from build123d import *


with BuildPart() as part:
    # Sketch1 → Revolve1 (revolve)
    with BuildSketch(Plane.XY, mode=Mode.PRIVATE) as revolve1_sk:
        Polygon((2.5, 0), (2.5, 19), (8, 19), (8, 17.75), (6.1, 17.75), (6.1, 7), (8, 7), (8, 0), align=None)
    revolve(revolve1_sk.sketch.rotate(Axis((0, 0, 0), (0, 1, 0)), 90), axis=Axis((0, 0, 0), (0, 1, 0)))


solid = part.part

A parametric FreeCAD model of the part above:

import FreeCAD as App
import Part
import Sketcher

V = App.Vector
Q = App.Units.Quantity


def add_polygon(sketch, points):
    """Adds a closed chain of lines whose ends are joined by coincident constraints."""
    first, n = sketch.GeometryCount, len(points)
    for a, b in zip(points, points[1:] + points[:1]):
        sketch.addGeometry(Part.LineSegment(App.Vector(*a, 0), App.Vector(*b, 0)), False)
    for i in range(n):
        sketch.addConstraint(Sketcher.Constraint("Coincident", first + i, 2, first + (i + 1) % n, 1))

doc = App.newDocument("Part")
body = doc.addObject("PartDesign::Body", "Body")

# Sketch on XY plane
sketch1 = doc.addObject("Sketcher::SketchObject", "Sketch")
body.addObject(sketch1)
sketch1.AttachmentSupport = (doc.XY_Plane, [""])
sketch1.MapMode = "FlatFace"
add_polygon(sketch1, [(2.5, 19), (2.5, 0), (8, 0), (8, 7), (6.1, 7), (6.1, 17.8), (8, 17.8), (8, 19)])  # lines 0-7
sketch1.addConstraint(Sketcher.Constraint("Vertical", 0))
sketch1.addConstraint(Sketcher.Constraint("Horizontal", 1))
sketch1.addConstraint(Sketcher.Constraint("Vertical", 2))
sketch1.addConstraint(Sketcher.Constraint("Horizontal", 3))
sketch1.addConstraint(Sketcher.Constraint("Vertical", 4))
sketch1.addConstraint(Sketcher.Constraint("Horizontal", 5))
sketch1.addConstraint(Sketcher.Constraint("Vertical", 6))
sketch1.addConstraint(Sketcher.Constraint("Horizontal", 7))
sketch1.addConstraint(Sketcher.Constraint("PointOnObject", 0, 2, -1))
sketch1.addConstraint(Sketcher.Constraint("Vertical", 2, 2, 5, 2))
sketch1.addConstraint(Sketcher.Constraint("DistanceY", 0, 2, 0, 1, Q("19 mm")))
sketch1.addConstraint(Sketcher.Constraint("DistanceY", 2, 1, 2, 2, Q("7 mm")))
sketch1.addConstraint(Sketcher.Constraint("DistanceX", 1, 1, 1, 2, Q("5.5 mm")))
sketch1.addConstraint(Sketcher.Constraint("DistanceX", 3, 2, 3, 1, Q("1.9 mm")))
sketch1.addConstraint(Sketcher.Constraint("DistanceX", -1, 1, 1, 2, Q("8 mm")))
sketch1.addConstraint(Sketcher.Constraint("DistanceY", 4, 1, 4, 2, Q("10.75 mm")))
revolution = doc.addObject("PartDesign::Revolution", "Revolution")
body.addObject(revolution)
revolution.Profile = sketch1
revolution.ReferenceAxis = (sketch1, ["V_Axis"])
revolution.Angle = 360

doc.recompute()
